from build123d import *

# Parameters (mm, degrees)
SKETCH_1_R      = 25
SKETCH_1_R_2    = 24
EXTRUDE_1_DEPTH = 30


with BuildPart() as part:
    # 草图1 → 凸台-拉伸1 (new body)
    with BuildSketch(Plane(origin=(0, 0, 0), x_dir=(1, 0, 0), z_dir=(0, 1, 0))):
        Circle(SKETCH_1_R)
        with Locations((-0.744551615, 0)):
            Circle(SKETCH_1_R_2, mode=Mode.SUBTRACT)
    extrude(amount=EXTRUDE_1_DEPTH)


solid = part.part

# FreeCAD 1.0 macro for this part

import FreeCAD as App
import Part
import Sketcher
Q = App.Units.Quantity

doc = App.newDocument("Part")
body = doc.addObject("PartDesign::Body", "Body")

sketch1 = body.newObject("Sketcher::SketchObject", "Sketch")
sketch1.AttachmentSupport = (doc.getObject("XZ_Plane"), [""])
sketch1.MapMode = "FlatFace"
sketch1.addGeometry(Part.Circle(App.Vector(0, 0, 0), App.Vector(0, 0, 1), 25), False)
sketch1.addGeometry(Part.Circle(App.Vector(-0.744552, 0, 0), App.Vector(0, 0, 1), 24), False)
sketch1.addConstraint(Sketcher.Constraint("Coincident", 0, 3, -1, 1))
sketch1.addConstraint(Sketcher.Constraint("PointOnObject", 1, 3, -1))
sketch1.addConstraint(Sketcher.Constraint("Diameter", 0, Q("50 mm")))
sketch1.addConstraint(Sketcher.Constraint("Diameter", 1, Q("48 mm")))
sketch1.addConstraint(Sketcher.Constraint("DistanceX", 1, 3, -1, 1, Q("0.744552 mm")))
pad1 = body.newObject("PartDesign::Pad", "Pad")
pad1.Profile = sketch1
pad1.Length = 30
pad1.Reversed = True

doc.recompute()
